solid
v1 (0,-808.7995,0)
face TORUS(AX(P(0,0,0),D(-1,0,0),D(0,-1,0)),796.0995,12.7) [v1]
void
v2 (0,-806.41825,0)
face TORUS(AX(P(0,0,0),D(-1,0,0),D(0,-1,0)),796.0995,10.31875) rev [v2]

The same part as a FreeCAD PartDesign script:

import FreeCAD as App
import Part
import Sketcher
from FreeCAD import Vector
Q = App.Units.Quantity

doc = App.newDocument("Part")
body = doc.addObject("PartDesign::Body", "Body")

sketch1 = body.newObject("Sketcher::SketchObject", "Sketch")
sketch1.AttachmentSupport = (doc.getObject("XY_Plane"), [""])
sketch1.MapMode = "FlatFace"
sketch1.addGeometry([
    Part.Circle(Vector(0, 796, 0), Vector(0, 0, 1), 13),
    Part.Circle(Vector(0, 796, 0), Vector(0, 0, 1), 10),
], False)
sketch1.addConstraint([
    Sketcher.Constraint("Coincident", 1, 3, 0, 3),
    Sketcher.Constraint("PointOnObject", 0, 3, -2),
    Sketcher.Constraint("Diameter", 0, Q("1 in")),
    Sketcher.Constraint("Diameter", 1, Q("0.8125 in")),
    Sketcher.Constraint("DistanceY", -1, 1, 0, 3, Q("31.3425 in")),
])
revolution = body.newObject("PartDesign::Revolution", "Revolution")
revolution.Profile = sketch1
revolution.ReferenceAxis = (sketch1, ["H_Axis"])
revolution.Angle = 360

doc.recompute()
